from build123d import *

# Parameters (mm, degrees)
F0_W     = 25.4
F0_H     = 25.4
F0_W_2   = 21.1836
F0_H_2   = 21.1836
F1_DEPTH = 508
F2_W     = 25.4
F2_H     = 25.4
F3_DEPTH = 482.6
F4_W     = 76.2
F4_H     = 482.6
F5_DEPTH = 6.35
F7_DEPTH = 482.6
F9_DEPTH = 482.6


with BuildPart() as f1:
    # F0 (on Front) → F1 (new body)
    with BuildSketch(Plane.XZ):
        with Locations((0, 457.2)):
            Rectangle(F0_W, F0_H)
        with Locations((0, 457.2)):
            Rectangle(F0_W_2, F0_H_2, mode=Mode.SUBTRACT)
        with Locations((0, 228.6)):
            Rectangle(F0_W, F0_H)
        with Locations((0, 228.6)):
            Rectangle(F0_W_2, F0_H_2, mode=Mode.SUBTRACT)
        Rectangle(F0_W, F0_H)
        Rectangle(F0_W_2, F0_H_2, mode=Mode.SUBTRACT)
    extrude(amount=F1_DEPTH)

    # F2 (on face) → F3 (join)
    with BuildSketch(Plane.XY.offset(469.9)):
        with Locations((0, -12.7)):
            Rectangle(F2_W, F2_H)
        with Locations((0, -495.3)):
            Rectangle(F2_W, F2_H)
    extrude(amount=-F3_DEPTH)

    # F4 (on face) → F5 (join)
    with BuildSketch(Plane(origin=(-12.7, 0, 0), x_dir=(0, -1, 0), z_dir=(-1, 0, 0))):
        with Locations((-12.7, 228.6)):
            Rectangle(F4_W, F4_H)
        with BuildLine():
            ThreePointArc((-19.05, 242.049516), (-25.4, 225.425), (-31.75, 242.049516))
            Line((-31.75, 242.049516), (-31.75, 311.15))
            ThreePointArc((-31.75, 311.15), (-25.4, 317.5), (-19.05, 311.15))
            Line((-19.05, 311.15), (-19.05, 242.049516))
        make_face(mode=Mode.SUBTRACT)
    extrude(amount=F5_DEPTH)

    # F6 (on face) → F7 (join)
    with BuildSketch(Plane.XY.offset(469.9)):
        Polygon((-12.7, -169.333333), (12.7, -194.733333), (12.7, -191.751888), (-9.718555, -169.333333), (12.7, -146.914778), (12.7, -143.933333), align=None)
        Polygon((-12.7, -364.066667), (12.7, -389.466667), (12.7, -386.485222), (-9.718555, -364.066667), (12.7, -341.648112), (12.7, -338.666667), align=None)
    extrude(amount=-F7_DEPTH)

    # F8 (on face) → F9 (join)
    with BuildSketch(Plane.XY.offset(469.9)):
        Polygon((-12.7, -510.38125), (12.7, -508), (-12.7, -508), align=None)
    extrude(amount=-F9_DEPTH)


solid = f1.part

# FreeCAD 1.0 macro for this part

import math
import FreeCAD as App
import Part
import Sketcher

V = App.Vector
Q = App.Units.Quantity

doc = App.newDocument("Part")
body = doc.addObject("PartDesign::Body", "Body")
body.AllowCompound = True

# Sketch on XZ plane
sketch1 = body.newObject("Sketcher::SketchObject", "Sketch")
sketch1.AttachmentSupport = (doc.getObject("XZ_Plane"), [""])
sketch1.MapMode = "FlatFace"
sketch1.addGeometry(Part.LineSegment(V(-13, 470, 0), V(-13, 444, 0)), False)
sketch1.addGeometry(Part.LineSegment(V(-13, 444, 0), V(13, 444, 0)), False)
sketch1.addGeometry(Part.LineSegment(V(13, 444, 0), V(13, 470, 0)), False)
sketch1.addGeometry(Part.LineSegment(V(13, 470, 0), V(-13, 470, 0)), False)
sketch1.addGeometry(Part.LineSegment(V(11, 447, 0), V(-11, 447, 0)), False)
sketch1.addGeometry(Part.LineSegment(V(-11, 447, 0), V(-11, 468, 0)), False)
sketch1.addGeometry(Part.LineSegment(V(-11, 468, 0), V(11, 468, 0)), False)
sketch1.addGeometry(Part.LineSegment(V(11, 468, 0), V(11, 447, 0)), False)
sketch1.addGeometry(Part.LineSegment(V(-13, 241, 0), V(-13, 216, 0)), False)
sketch1.addGeometry(Part.LineSegment(V(-13, 216, 0), V(13, 216, 0)), False)
sketch1.addGeometry(Part.LineSegment(V(13, 216, 0), V(13, 241, 0)), False)
sketch1.addGeometry(Part.LineSegment(V(13, 241, 0), V(-13, 241, 0)), False)
sketch1.addGeometry(Part.LineSegment(V(11, 218, 0), V(-11, 218, 0)), False)
sketch1.addGeometry(Part.LineSegment(V(-11, 218, 0), V(-11, 239, 0)), False)
sketch1.addGeometry(Part.LineSegment(V(-11, 239, 0), V(11, 239, 0)), False)
sketch1.addGeometry(Part.LineSegment(V(11, 239, 0), V(11, 218, 0)), False)
sketch1.addGeometry(Part.LineSegment(V(-13, 13, 0), V(-13, -13, 0)), False)
sketch1.addGeometry(Part.LineSegment(V(-13, -13, 0), V(13, -13, 0)), False)
sketch1.addGeometry(Part.LineSegment(V(13, -13, 0), V(13, 13, 0)), False)
sketch1.addGeometry(Part.LineSegment(V(13, 13, 0), V(-13, 13, 0)), False)
sketch1.addGeometry(Part.LineSegment(V(11, -11, 0), V(-11, -11, 0)), False)
sketch1.addGeometry(Part.LineSegment(V(-11, -11, 0), V(-11, 11, 0)), False)
sketch1.addGeometry(Part.LineSegment(V(-11, 11, 0), V(11, 11, 0)), False)
sketch1.addGeometry(Part.LineSegment(V(11, 11, 0), V(11, -11, 0)), False)
sketch1.addConstraint(Sketcher.Constraint("Coincident", 0, 2, 1, 1))
sketch1.addConstraint(Sketcher.Constraint("Coincident", 1, 2, 2, 1))
sketch1.addConstraint(Sketcher.Constraint("Coincident", 2, 2, 3, 1))
sketch1.addConstraint(Sketcher.Constraint("Coincident", 3, 2, 0, 1))
sketch1.addConstraint(Sketcher.Constraint("Coincident", 4, 2, 5, 1))
sketch1.addConstraint(Sketcher.Constraint("Coincident", 5, 2, 6, 1))
sketch1.addConstraint(Sketcher.Constraint("Coincident", 6, 2, 7, 1))
sketch1.addConstraint(Sketcher.Constraint("Coincident", 7, 2, 4, 1))
sketch1.addConstraint(Sketcher.Constraint("Coincident", 8, 2, 9, 1))
sketch1.addConstraint(Sketcher.Constraint("Coincident", 9, 2, 10, 1))
sketch1.addConstraint(Sketcher.Constraint("Coincident", 10, 2, 11, 1))
sketch1.addConstraint(Sketcher.Constraint("Coincident", 11, 2, 8, 1))
sketch1.addConstraint(Sketcher.Constraint("Coincident", 12, 2, 13, 1))
sketch1.addConstraint(Sketcher.Constraint("Coincident", 13, 2, 14, 1))
sketch1.addConstraint(Sketcher.Constraint("Coincident", 14, 2, 15, 1))
sketch1.addConstraint(Sketcher.Constraint("Coincident", 15, 2, 12, 1))
sketch1.addConstraint(Sketcher.Constraint("Coincident", 16, 2, 17, 1))
sketch1.addConstraint(Sketcher.Constraint("Coincident", 17, 2, 18, 1))
sketch1.addConstraint(Sketcher.Constraint("Coincident", 18, 2, 19, 1))
sketch1.addConstraint(Sketcher.Constraint("Coincident", 19, 2, 16, 1))
sketch1.addConstraint(Sketcher.Constraint("Coincident", 20, 2, 21, 1))
sketch1.addConstraint(Sketcher.Constraint("Coincident", 21, 2, 22, 1))
sketch1.addConstraint(Sketcher.Constraint("Coincident", 22, 2, 23, 1))
sketch1.addConstraint(Sketcher.Constraint("Coincident", 23, 2, 20, 1))
sketch1.addConstraint(Sketcher.Constraint("Vertical", 0))
sketch1.addConstraint(Sketcher.Constraint("Horizontal", 1))
sketch1.addConstraint(Sketcher.Constraint("Vertical", 2))
sketch1.addConstraint(Sketcher.Constraint("Horizontal", 3))
sketch1.addConstraint(Sketcher.Constraint("Horizontal", 4))
sketch1.addConstraint(Sketcher.Constraint("Vertical", 5))
sketch1.addConstraint(Sketcher.Constraint("Horizontal", 6))
sketch1.addConstraint(Sketcher.Constraint("Vertical", 7))
sketch1.addConstraint(Sketcher.Constraint("Vertical", 8))
sketch1.addConstraint(Sketcher.Constraint("Horizontal", 9))
sketch1.addConstraint(Sketcher.Constraint("Vertical", 10))
sketch1.addConstraint(Sketcher.Constraint("Horizontal", 11))
sketch1.addConstraint(Sketcher.Constraint("Horizontal", 12))
sketch1.addConstraint(Sketcher.Constraint("Vertical", 13))
sketch1.addConstraint(Sketcher.Constraint("Horizontal", 14))
sketch1.addConstraint(Sketcher.Constraint("Vertical", 15))
sketch1.addConstraint(Sketcher.Constraint("Vertical", 16))
sketch1.addConstraint(Sketcher.Constraint("Horizontal", 17))
sketch1.addConstraint(Sketcher.Constraint("Vertical", 18))
sketch1.addConstraint(Sketcher.Constraint("Horizontal", 19))
sketch1.addConstraint(Sketcher.Constraint("Horizontal", 20))
sketch1.addConstraint(Sketcher.Constraint("Vertical", 21))
sketch1.addConstraint(Sketcher.Constraint("Horizontal", 22))
sketch1.addConstraint(Sketcher.Constraint("Vertical", 23))
sketch1.addConstraint(Sketcher.Constraint("Symmetric", 16, 2, 18, 2, -1, 1))
sketch1.addConstraint(Sketcher.Constraint("Symmetric", 20, 2, 22, 2, -1, 1))
sketch1.addConstraint(Sketcher.Constraint("Vertical", 3, 2, 8, 2))
sketch1.addConstraint(Sketcher.Constraint("Vertical", 2, 2, 9, 2))
sketch1.addConstraint(Sketcher.Constraint("Vertical", 5, 2, 12, 2))
sketch1.addConstraint(Sketcher.Constraint("Vertical", 7, 2, 14, 2))
sketch1.addConstraint(Sketcher.Constraint("Vertical", 11, 2, 16, 2))
sketch1.addConstraint(Sketcher.Constraint("Vertical", 10, 2, 17, 2))
sketch1.addConstraint(Sketcher.Constraint("Vertical", 13, 2, 20, 2))
sketch1.addConstraint(Sketcher.Constraint("Vertical", 15, 2, 22, 2))
sketch1.addConstraint(Sketcher.Constraint("Equal", 19, 0))
sketch1.addConstraint(Sketcher.Constraint("Equal", 22, 5))
sketch1.addConstraint(Sketcher.Constraint("Equal", 2, 8))
sketch1.addConstraint(Sketcher.Constraint("Equal", 7, 13))
sketch1.addConstraint(Sketcher.Constraint("Equal", 10, 16))
sketch1.addConstraint(Sketcher.Constraint("Equal", 15, 21))
sketch1.addConstraint(Sketcher.Constraint("DistanceX", 1, 1, 1, 2, Q("1 in")))
sketch1.addConstraint(Sketcher.Constraint("DistanceY", 8, 2, 0, 2, Q("9 in")))
sketch1.addConstraint(Sketcher.Constraint("DistanceY", 16, 2, 8, 2, Q("9 in")))
sketch1.addConstraint(Sketcher.Constraint("DistanceX", 4, 2, 4, 1, Q("0.834 in")))
sketch1.addConstraint(Sketcher.Constraint("DistanceY", -1, 1, 4, 2, Q("17.583 in")))
sketch1.addConstraint(Sketcher.Constraint("DistanceY", -1, 1, 12, 2, Q("8.583 in")))
pad1 = body.newObject("PartDesign::Pad", "Pad")
pad1.Profile = sketch1
pad1.Length = Q("20 in")

# Sketch on XY plane
sketch2 = body.newObject("Sketcher::SketchObject", "Sketch001")
sketch2.AttachmentSupport = (doc.getObject("XY_Plane"), [""])
sketch2.MapMode = "FlatFace"
sketch2.AttachmentOffset = App.Placement(V(0, 0, 18.5 * 25.4), App.Rotation())
sketch2.addGeometry(Part.LineSegment(V(-13, 0, 0), V(-13, -25, 0)), False)
sketch2.addGeometry(Part.LineSegment(V(-13, -25, 0), V(13, -25, 0)), False)
sketch2.addGeometry(Part.LineSegment(V(13, -25, 0), V(13, 0, 0)), False)
sketch2.addGeometry(Part.LineSegment(V(13, 0, 0), V(-13, 0, 0)), False)
sketch2.addGeometry(Part.LineSegment(V(-13, -483, 0), V(-13, -508, 0)), False)
sketch2.addGeometry(Part.LineSegment(V(-13, -508, 0), V(13, -508, 0)), False)
sketch2.addGeometry(Part.LineSegment(V(13, -508, 0), V(13, -483, 0)), False)
sketch2.addGeometry(Part.LineSegment(V(13, -483, 0), V(-13, -483, 0)), False)
sketch2.addConstraint(Sketcher.Constraint("Coincident", 0, 2, 1, 1))
sketch2.addConstraint(Sketcher.Constraint("Coincident", 1, 2, 2, 1))
sketch2.addConstraint(Sketcher.Constraint("Coincident", 2, 2, 3, 1))
sketch2.addConstraint(Sketcher.Constraint("Coincident", 3, 2, 0, 1))
sketch2.addConstraint(Sketcher.Constraint("Coincident", 4, 2, 5, 1))
sketch2.addConstraint(Sketcher.Constraint("Coincident", 5, 2, 6, 1))
sketch2.addConstraint(Sketcher.Constraint("Coincident", 6, 2, 7, 1))
sketch2.addConstraint(Sketcher.Constraint("Coincident", 7, 2, 4, 1))
sketch2.addConstraint(Sketcher.Constraint("Vertical", 0))
sketch2.addConstraint(Sketcher.Constraint("Horizontal", 1))
sketch2.addConstraint(Sketcher.Constraint("Vertical", 2))
sketch2.addConstraint(Sketcher.Constraint("Horizontal", 3))
sketch2.addConstraint(Sketcher.Constraint("Vertical", 4))
sketch2.addConstraint(Sketcher.Constraint("Horizontal", 5))
sketch2.addConstraint(Sketcher.Constraint("Vertical", 6))
sketch2.addConstraint(Sketcher.Constraint("Horizontal", 7))
sketch2.addConstraint(Sketcher.Constraint("Symmetric", 2, 2, 3, 2, -1, 1))
sketch2.addConstraint(Sketcher.Constraint("Vertical", 3, 2, 4, 2))
sketch2.addConstraint(Sketcher.Constraint("Vertical", 2, 2, 5, 2))
sketch2.addConstraint(Sketcher.Constraint("Equal", 7, 0))
sketch2.addConstraint(Sketcher.Constraint("Equal", 2, 4))
sketch2.addConstraint(Sketcher.Constraint("DistanceX", 1, 1, 1, 2, Q("1 in")))
sketch2.addConstraint(Sketcher.Constraint("DistanceY", 4, 2, -1, 1, Q("20 in")))
pad2 = body.newObject("PartDesign::Pad", "Pad001")
pad2.Profile = sketch2
pad2.Length = Q("19 in")
pad2.Reversed = True

# Sketch on YZ plane
sketch3 = body.newObject("Sketcher::SketchObject", "Sketch002")
sketch3.AttachmentSupport = (doc.getObject("YZ_Plane"), [""])
sketch3.MapMode = "FlatFace"
sketch3.AttachmentOffset = App.Placement(V(0, 0, -0.5 * 25.4), App.Rotation())
sketch3.addGeometry(Part.LineSegment(V(51, 470, 0), V(51, -13, 0)), False)
sketch3.addGeometry(Part.LineSegment(V(51, -13, 0), V(-25, -13, 0)), False)
sketch3.addGeometry(Part.LineSegment(V(-25, -13, 0), V(-25, 470, 0)), False)
sketch3.addGeometry(Part.LineSegment(V(-25, 470, 0), V(51, 470, 0)), False)
sketch3.addGeometry(Part.LineSegment(V(19, 311, 0), V(19, 242, 0)), False)
sketch3.addGeometry(Part.ArcOfCircle(Part.Circle(V(25, 235, 0), V(0, 0, 1), 10), math.radians(132), math.radians(408)), False)
sketch3.addGeometry(Part.LineSegment(V(32, 242, 0), V(32, 311, 0)), False)
sketch3.addGeometry(Part.ArcOfCircle(Part.Circle(V(25, 311, 0), V(0, 0, 1), 6), math.radians(0), math.radians(180)), False)
sketch3.addConstraint(Sketcher.Constraint("Coincident", 0, 2, 1, 1))
sketch3.addConstraint(Sketcher.Constraint("Coincident", 1, 2, 2, 1))
sketch3.addConstraint(Sketcher.Constraint("Coincident", 2, 2, 3, 1))
sketch3.addConstraint(Sketcher.Constraint("Coincident", 3, 2, 0, 1))
sketch3.addConstraint(Sketcher.Constraint("Coincident", 4, 2, 5, 1))
sketch3.addConstraint(Sketcher.Constraint("Coincident", 5, 2, 6, 1))
sketch3.addConstraint(Sketcher.Constraint("Tangent", 6, 2, 7, 1))
sketch3.addConstraint(Sketcher.Constraint("Tangent", 7, 2, 4, 1))
sketch3.addConstraint(Sketcher.Constraint("Vertical", 0))
sketch3.addConstraint(Sketcher.Constraint("Horizontal", 1))
sketch3.addConstraint(Sketcher.Constraint("Vertical", 2))
sketch3.addConstraint(Sketcher.Constraint("Horizontal", 3))
sketch3.addConstraint(Sketcher.Constraint("Vertical", 4))
sketch3.addConstraint(Sketcher.Constraint("Vertical", 6))
sketch3.addConstraint(Sketcher.Constraint("Horizontal", 4, 2, 5, 2))
sketch3.addConstraint(Sketcher.Constraint("DistanceX", 1, 2, 1, 1, Q("3 in")))
sketch3.addConstraint(Sketcher.Constraint("DistanceY", 0, 2, 0, 1, Q("19 in")))
sketch3.addConstraint(Sketcher.Constraint("Radius", 7, Q("0.25 in")))
sketch3.addConstraint(Sketcher.Constraint("DistanceX", -1, 1, 5, 3, Q("1 in")))
sketch3.addConstraint(Sketcher.Constraint("DistanceX", -1, 1, 0, 2, Q("2 in")))
sketch3.addConstraint(Sketcher.Constraint("Radius", 5, Q("0.375 in")))
sketch3.addConstraint(Sketcher.Constraint("DistanceY", 5, 3, 7, 3, Q("3 in")))
sketch3.addConstraint(Sketcher.Constraint("DistanceY", 0, 2, -1, 1, Q("0.5 in")))
sketch3.addConstraint(Sketcher.Constraint("DistanceY", -1, 1, 5, 3, Q("9.25 in")))
pad3 = body.newObject("PartDesign::Pad", "Pad002")
pad3.Profile = sketch3
pad3.Length = Q("0.25 in")
pad3.Reversed = True

# Sketch on XY plane
sketch4 = body.newObject("Sketcher::SketchObject", "Sketch003")
sketch4.AttachmentSupport = (doc.getObject("XY_Plane"), [""])
sketch4.MapMode = "FlatFace"
sketch4.AttachmentOffset = App.Placement(V(0, 0, 18.5 * 25.4), App.Rotation())
sketch4.addGeometry(Part.LineSegment(V(-12.7, -169.3, 0), V(12.7, -194.7, 0)), False)
sketch4.addGeometry(Part.LineSegment(V(12.7, -194.7, 0), V(12.7, -191.8, 0)), False)
sketch4.addGeometry(Part.LineSegment(V(12.7, -191.8, 0), V(-9.7, -169.3, 0)), False)
sketch4.addGeometry(Part.LineSegment(V(-9.7, -169.3, 0), V(12.7, -146.9, 0)), False)
sketch4.addGeometry(Part.LineSegment(V(12.7, -146.9, 0), V(12.7, -143.9, 0)), False)
sketch4.addGeometry(Part.LineSegment(V(12.7, -143.9, 0), V(-12.7, -169.3, 0)), False)
sketch4.addGeometry(Part.LineSegment(V(-12.7, -364.1, 0), V(12.7, -389.5, 0)), False)
sketch4.addGeometry(Part.LineSegment(V(12.7, -389.5, 0), V(12.7, -386.5, 0)), False)
sketch4.addGeometry(Part.LineSegment(V(12.7, -386.5, 0), V(-9.7, -364.1, 0)), False)
sketch4.addGeometry(Part.LineSegment(V(-9.7, -364.1, 0), V(12.7, -341.6, 0)), False)
sketch4.addGeometry(Part.LineSegment(V(12.7, -341.6, 0), V(12.7, -338.7, 0)), False)
sketch4.addGeometry(Part.LineSegment(V(12.7, -338.7, 0), V(-12.7, -364.1, 0)), False)
sketch4.addConstraint(Sketcher.Constraint("Coincident", 0, 2, 1, 1))
sketch4.addConstraint(Sketcher.Constraint("Coincident", 1, 2, 2, 1))
sketch4.addConstraint(Sketcher.Constraint("Coincident", 2, 2, 3, 1))
sketch4.addConstraint(Sketcher.Constraint("Coincident", 3, 2, 4, 1))
sketch4.addConstraint(Sketcher.Constraint("Coincident", 4, 2, 5, 1))
sketch4.addConstraint(Sketcher.Constraint("Coincident", 5, 2, 0, 1))
sketch4.addConstraint(Sketcher.Constraint("Coincident", 6, 2, 7, 1))
sketch4.addConstraint(Sketcher.Constraint("Coincident", 7, 2, 8, 1))
sketch4.addConstraint(Sketcher.Constraint("Coincident", 8, 2, 9, 1))
sketch4.addConstraint(Sketcher.Constraint("Coincident", 9, 2, 10, 1))
sketch4.addConstraint(Sketcher.Constraint("Coincident", 10, 2, 11, 1))
sketch4.addConstraint(Sketcher.Constraint("Coincident", 11, 2, 6, 1))
sketch4.addConstraint(Sketcher.Constraint("Vertical", 1))
sketch4.addConstraint(Sketcher.Constraint("Vertical", 4))
sketch4.addConstraint(Sketcher.Constraint("Vertical", 7))
sketch4.addConstraint(Sketcher.Constraint("Vertical", 10))
sketch4.addConstraint(Sketcher.Constraint("Parallel", 0, 2))
sketch4.addConstraint(Sketcher.Constraint("Perpendicular", 2, 3))
sketch4.addConstraint(Sketcher.Constraint("Parallel", 3, 5))
sketch4.addConstraint(Sketcher.Constraint("Perpendicular", 5, 6))
sketch4.addConstraint(Sketcher.Constraint("Parallel", 6, 8))
sketch4.addConstraint(Sketcher.Constraint("Perpendicular", 8, 9))
sketch4.addConstraint(Sketcher.Constraint("Parallel", 9, 11))
sketch4.addConstraint(Sketcher.Constraint("Horizontal", 2, 2, 5, 2))
sketch4.addConstraint(Sketcher.Constraint("Horizontal", 8, 2, 11, 2))
sketch4.addConstraint(Sketcher.Constraint("Vertical", 1, 2, 3, 2))
sketch4.addConstraint(Sketcher.Constraint("Vertical", 4, 2, 6, 2))
sketch4.addConstraint(Sketcher.Constraint("Vertical", 2, 2, 8, 2))
sketch4.addConstraint(Sketcher.Constraint("Vertical", 7, 2, 9, 2))
sketch4.addConstraint(Sketcher.Constraint("Vertical", 5, 2, 11, 2))
sketch4.addConstraint(Sketcher.Constraint("Equal", 1, 4))
sketch4.addConstraint(Sketcher.Constraint("DistanceY", 0, 2, 2, 2, Q("1 in")))
sketch4.addConstraint(Sketcher.Constraint("DistanceX", -1, 1, 0, 2, Q("0.5 in")))
sketch4.addConstraint(Sketcher.Constraint("DistanceY", 1, 1, 1, 2, Q("2.981445 mm")))
sketch4.addConstraint(Sketcher.Constraint("DistanceY", 1, 2, -1, 1, Q("191.751888 mm")))
sketch4.addConstraint(Sketcher.Constraint("DistanceY", 7, 2, -1, 1, Q("386.485222 mm")))
pad4 = body.newObject("PartDesign::Pad", "Pad003")
pad4.Profile = sketch4
pad4.Length = Q("19 in")
pad4.Reversed = True

# Sketch on XY plane
sketch5 = body.newObject("Sketcher::SketchObject", "Sketch004")
sketch5.AttachmentSupport = (doc.getObject("XY_Plane"), [""])
sketch5.MapMode = "FlatFace"
sketch5.AttachmentOffset = App.Placement(V(0, 0, 18.5 * 25.4), App.Rotation())
sketch5.addGeometry(Part.LineSegment(V(-12.7, -510.4, 0), V(12.7, -508, 0)), False)
sketch5.addGeometry(Part.LineSegment(V(12.7, -508, 0), V(-12.7, -508, 0)), False)
sketch5.addGeometry(Part.LineSegment(V(-12.7, -508, 0), V(-12.7, -510.4, 0)), False)
sketch5.addConstraint(Sketcher.Constraint("Coincident", 0, 2, 1, 1))
sketch5.addConstraint(Sketcher.Constraint("Coincident", 1, 2, 2, 1))
sketch5.addConstraint(Sketcher.Constraint("Coincident", 2, 2, 0, 1))
sketch5.addConstraint(Sketcher.Constraint("Horizontal", 1))
sketch5.addConstraint(Sketcher.Constraint("Vertical", 2))
sketch5.addConstraint(Sketcher.Constraint("DistanceX", 1, 2, 1, 1, Q("1 in")))
sketch5.addConstraint(Sketcher.Constraint("DistanceY", 0, 2, -1, 1, Q("20 in")))
sketch5.addConstraint(Sketcher.Constraint("DistanceX", -1, 1, 0, 2, Q("0.5 in")))
sketch5.addConstraint(Sketcher.Constraint("DistanceY", 2, 2, 2, 1, Q("0.09375 in")))
pad5 = body.newObject("PartDesign::Pad", "Pad004")
pad5.Profile = sketch5
pad5.Length = Q("19 in")
pad5.Reversed = True

doc.recompute()
